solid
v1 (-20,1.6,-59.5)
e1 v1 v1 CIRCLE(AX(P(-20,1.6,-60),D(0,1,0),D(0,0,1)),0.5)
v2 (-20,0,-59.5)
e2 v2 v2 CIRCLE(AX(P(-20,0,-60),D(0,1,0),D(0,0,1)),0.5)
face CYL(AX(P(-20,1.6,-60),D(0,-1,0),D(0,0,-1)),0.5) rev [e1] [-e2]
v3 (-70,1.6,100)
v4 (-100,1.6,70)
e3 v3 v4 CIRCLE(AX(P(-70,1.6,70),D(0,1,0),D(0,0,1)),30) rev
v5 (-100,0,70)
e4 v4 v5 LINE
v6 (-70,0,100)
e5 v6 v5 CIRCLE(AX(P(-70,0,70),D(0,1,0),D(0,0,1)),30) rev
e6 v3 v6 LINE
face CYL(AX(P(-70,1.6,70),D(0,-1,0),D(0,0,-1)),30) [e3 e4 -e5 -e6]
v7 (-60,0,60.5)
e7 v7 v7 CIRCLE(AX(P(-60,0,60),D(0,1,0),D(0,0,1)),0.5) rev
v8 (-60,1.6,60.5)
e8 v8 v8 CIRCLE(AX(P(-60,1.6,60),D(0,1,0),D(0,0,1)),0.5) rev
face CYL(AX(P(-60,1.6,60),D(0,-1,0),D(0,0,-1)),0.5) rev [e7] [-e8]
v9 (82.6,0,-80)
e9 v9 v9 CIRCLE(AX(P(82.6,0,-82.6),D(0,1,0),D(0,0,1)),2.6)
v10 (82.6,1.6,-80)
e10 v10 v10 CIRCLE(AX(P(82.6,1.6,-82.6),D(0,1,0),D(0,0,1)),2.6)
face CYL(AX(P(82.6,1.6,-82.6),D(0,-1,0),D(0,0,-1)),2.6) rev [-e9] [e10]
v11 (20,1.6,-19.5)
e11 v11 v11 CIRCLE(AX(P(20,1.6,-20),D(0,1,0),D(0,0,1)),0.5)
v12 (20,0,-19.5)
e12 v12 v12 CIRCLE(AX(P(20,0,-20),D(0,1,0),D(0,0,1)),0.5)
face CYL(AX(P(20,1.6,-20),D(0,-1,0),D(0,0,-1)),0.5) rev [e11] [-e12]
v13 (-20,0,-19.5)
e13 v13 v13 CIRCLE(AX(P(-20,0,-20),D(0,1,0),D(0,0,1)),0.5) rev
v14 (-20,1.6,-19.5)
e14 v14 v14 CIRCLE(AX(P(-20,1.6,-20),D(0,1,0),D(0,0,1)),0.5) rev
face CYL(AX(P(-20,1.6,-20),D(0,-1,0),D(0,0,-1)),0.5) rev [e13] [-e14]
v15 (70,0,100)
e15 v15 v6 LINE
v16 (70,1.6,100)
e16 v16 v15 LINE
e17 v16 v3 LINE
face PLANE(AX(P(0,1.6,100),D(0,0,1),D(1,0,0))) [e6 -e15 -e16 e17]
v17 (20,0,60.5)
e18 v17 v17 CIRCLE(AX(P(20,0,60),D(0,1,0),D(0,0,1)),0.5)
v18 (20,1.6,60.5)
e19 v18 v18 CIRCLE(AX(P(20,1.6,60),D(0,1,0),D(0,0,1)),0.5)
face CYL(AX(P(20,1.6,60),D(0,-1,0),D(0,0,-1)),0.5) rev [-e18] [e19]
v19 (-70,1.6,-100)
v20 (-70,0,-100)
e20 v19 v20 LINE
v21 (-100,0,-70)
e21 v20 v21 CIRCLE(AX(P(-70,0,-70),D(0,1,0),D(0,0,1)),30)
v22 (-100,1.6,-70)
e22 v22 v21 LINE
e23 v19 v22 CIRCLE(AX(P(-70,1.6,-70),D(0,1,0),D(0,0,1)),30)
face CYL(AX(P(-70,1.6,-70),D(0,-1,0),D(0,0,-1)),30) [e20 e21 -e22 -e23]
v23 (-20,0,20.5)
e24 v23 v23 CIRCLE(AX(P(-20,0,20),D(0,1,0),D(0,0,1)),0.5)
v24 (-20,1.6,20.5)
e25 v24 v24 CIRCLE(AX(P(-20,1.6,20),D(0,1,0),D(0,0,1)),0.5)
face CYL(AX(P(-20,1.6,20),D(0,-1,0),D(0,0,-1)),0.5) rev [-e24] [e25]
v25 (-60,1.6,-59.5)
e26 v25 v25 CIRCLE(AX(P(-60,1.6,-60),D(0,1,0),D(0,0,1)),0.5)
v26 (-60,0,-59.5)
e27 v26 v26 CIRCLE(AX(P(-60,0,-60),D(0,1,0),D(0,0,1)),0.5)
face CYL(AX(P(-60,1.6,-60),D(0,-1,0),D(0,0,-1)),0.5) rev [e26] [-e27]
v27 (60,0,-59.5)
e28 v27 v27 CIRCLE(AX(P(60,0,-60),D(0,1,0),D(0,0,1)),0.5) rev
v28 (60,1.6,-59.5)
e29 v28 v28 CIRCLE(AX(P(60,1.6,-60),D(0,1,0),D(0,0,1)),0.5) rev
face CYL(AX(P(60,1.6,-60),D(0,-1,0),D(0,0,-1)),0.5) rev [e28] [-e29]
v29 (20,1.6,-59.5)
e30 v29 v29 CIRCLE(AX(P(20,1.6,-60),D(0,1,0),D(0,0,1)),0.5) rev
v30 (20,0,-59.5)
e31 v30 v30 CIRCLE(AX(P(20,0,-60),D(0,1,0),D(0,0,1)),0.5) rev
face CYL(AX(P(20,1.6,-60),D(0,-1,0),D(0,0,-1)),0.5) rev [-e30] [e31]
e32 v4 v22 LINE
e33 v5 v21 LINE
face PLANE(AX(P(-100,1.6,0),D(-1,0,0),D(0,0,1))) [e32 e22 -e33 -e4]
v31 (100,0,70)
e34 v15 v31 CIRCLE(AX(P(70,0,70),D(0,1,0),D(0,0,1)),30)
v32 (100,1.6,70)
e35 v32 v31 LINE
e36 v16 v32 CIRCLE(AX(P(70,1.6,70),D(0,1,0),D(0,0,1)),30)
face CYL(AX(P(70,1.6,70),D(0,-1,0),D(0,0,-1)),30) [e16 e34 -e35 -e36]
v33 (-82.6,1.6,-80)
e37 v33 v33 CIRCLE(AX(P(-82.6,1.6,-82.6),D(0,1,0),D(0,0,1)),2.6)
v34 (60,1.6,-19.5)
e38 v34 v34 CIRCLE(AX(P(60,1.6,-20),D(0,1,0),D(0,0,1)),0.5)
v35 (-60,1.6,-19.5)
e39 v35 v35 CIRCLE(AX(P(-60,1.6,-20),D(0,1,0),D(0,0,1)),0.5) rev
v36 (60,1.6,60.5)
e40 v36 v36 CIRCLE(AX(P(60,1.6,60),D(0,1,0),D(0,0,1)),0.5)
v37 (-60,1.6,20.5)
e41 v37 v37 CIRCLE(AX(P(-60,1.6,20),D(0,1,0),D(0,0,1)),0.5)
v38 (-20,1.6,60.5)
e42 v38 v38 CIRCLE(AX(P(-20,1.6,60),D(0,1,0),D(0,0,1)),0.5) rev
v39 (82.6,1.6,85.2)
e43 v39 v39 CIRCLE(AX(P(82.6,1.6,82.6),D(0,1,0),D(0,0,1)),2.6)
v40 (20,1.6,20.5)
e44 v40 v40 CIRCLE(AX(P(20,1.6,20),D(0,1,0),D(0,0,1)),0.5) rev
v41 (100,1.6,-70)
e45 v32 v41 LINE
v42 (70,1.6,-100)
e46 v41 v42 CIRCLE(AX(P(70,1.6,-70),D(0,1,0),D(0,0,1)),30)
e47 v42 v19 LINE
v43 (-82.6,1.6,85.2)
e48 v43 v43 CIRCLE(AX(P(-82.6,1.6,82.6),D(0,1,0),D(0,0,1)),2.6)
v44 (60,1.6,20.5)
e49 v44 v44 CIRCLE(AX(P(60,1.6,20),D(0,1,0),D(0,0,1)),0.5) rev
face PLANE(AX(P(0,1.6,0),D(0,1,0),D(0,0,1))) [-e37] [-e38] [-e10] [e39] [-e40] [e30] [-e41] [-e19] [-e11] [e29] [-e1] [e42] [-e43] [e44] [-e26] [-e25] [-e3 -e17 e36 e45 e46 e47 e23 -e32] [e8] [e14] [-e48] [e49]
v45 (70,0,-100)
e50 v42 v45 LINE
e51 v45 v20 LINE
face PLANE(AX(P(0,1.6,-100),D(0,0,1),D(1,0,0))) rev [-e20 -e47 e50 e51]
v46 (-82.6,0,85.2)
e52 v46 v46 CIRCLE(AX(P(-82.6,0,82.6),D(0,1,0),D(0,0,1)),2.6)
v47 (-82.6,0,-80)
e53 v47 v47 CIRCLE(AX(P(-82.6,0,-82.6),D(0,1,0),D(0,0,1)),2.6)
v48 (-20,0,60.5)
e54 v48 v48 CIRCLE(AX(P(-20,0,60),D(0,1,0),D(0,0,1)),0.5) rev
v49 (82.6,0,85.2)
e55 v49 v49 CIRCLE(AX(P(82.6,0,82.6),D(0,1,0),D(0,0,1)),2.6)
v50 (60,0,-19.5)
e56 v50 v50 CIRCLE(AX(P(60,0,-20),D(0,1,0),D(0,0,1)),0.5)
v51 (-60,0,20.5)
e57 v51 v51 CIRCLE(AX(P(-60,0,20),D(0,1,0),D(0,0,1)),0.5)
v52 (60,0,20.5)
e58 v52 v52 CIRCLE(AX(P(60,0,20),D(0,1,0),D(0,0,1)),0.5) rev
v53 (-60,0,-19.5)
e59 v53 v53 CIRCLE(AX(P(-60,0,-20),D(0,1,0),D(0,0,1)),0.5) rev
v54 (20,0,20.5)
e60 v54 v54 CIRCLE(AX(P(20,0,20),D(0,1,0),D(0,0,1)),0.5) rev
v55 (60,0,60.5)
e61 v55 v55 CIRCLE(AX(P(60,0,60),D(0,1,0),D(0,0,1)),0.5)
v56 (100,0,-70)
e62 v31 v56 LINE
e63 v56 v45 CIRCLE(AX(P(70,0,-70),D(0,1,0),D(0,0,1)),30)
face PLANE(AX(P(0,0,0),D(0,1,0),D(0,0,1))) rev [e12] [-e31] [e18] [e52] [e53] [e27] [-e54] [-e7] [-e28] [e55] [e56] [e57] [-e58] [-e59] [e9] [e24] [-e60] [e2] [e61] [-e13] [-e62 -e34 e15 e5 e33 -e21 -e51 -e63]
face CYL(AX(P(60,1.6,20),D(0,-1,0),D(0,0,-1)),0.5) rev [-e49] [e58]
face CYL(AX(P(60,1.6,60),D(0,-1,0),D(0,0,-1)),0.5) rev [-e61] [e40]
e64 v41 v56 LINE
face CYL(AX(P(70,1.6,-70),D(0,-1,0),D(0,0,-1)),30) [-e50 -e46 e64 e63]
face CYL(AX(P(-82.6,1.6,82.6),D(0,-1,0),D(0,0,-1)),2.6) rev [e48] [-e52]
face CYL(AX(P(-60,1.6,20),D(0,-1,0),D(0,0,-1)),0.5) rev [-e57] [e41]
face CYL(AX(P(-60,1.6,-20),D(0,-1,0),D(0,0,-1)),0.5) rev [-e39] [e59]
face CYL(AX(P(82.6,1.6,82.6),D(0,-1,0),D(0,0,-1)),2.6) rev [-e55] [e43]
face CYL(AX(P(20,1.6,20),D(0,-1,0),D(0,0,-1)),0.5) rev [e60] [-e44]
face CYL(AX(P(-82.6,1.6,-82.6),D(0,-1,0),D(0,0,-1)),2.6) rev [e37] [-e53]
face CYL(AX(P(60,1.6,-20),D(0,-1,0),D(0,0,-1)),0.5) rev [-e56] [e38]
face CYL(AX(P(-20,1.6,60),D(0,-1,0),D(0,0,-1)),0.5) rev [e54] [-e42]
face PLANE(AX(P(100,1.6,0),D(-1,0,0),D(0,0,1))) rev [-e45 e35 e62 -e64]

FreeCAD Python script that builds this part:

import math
import FreeCAD as App
import Part
import Sketcher

V = App.Vector
Q = App.Units.Quantity

doc = App.newDocument("Part")
params = doc.addObject("Spreadsheet::Sheet", "Params")
for row, (alias, value) in enumerate([
    ("sketch1_diameter", "1 mm"),
    ("sketch1_radius", "30 mm"),
    ("sketch1_diameter2", "5.2 mm"),
    ("sketch1_width", "140 mm"),
    ("pad1_length", "1.6 mm"),
], start=1):
    params.set(f"A{row}", alias)
    params.set(f"B{row}", "=" + value)
    params.setAlias(f"B{row}", alias)

body = doc.addObject("PartDesign::Body", "Body")

sketch1 = body.newObject("Sketcher::SketchObject", "Sketch")
sketch1.AttachmentSupport = (doc.getObject("XZ_Plane"), [""])
sketch1.MapMode = "FlatFace"
sketch1.addGeometry([
    Part.LineSegment(V(-70, 100, 0), V(70, 100, 0)),
    Part.ArcOfCircle(Part.Circle(V(70, 70, 0), V(0, 0, 1), 30), math.radians(0), math.radians(90)),
    Part.LineSegment(V(100, 70, 0), V(100, -70, 0)),
    Part.ArcOfCircle(Part.Circle(V(70, -70, 0), V(0, 0, 1), 30), math.radians(-90), math.radians(0)),
    Part.LineSegment(V(70, -100, 0), V(-70, -100, 0)),
    Part.ArcOfCircle(Part.Circle(V(-70, -70, 0), V(0, 0, 1), 30), math.radians(180), math.radians(270)),
    Part.LineSegment(V(-100, -70, 0), V(-100, 70, 0)),
    Part.ArcOfCircle(Part.Circle(V(-70, 70, 0), V(0, 0, 1), 30), math.radians(90), math.radians(180)),
    Part.Circle(V(82.6, 82.6, 0), V(0, 0, 1), 2.6),
    Part.Circle(V(60, 60, 0), V(0, 0, 1), 0.5),
    Part.Circle(V(20, 60, 0), V(0, 0, 1), 0.5),
    Part.Circle(V(60, 20, 0), V(0, 0, 1), 0.5),
    Part.Circle(V(20, 20, 0), V(0, 0, 1), 0.5),
    Part.Circle(V(-20, 60, 0), V(0, 0, 1), 0.5),
    Part.Circle(V(-82.6, 82.6, 0), V(0, 0, 1), 2.6),
    Part.Circle(V(-60, 60, 0), V(0, 0, 1), 0.5),
    Part.Circle(V(-20, 20, 0), V(0, 0, 1), 0.5),
    Part.Circle(V(-60, 20, 0), V(0, 0, 1), 0.5),
    Part.Circle(V(60, -20, 0), V(0, 0, 1), 0.5),
    Part.Circle(V(20, -20, 0), V(0, 0, 1), 0.5),
    Part.Circle(V(60, -60, 0), V(0, 0, 1), 0.5),
    Part.Circle(V(82.6, -82.6, 0), V(0, 0, 1), 2.6),
    Part.Circle(V(20, -60, 0), V(0, 0, 1), 0.5),
    Part.Circle(V(-20, -20, 0), V(0, 0, 1), 0.5),
    Part.Circle(V(-60, -20, 0), V(0, 0, 1), 0.5),
    Part.Circle(V(-20, -60, 0), V(0, 0, 1), 0.5),
    Part.Circle(V(-60, -60, 0), V(0, 0, 1), 0.5),
    Part.Circle(V(-82.6, -82.6, 0), V(0, 0, 1), 2.6),
], False)
sketch1.addConstraint([
    Sketcher.Constraint("Tangent", 0, 2, 1, 2),
    Sketcher.Constraint("Tangent", 1, 1, 2, 1),
    Sketcher.Constraint("Tangent", 2, 2, 3, 2),
    Sketcher.Constraint("Tangent", 3, 1, 4, 1),
    Sketcher.Constraint("Tangent", 4, 2, 5, 2),
    Sketcher.Constraint("Tangent", 5, 1, 6, 1),
    Sketcher.Constraint("Tangent", 6, 2, 7, 2),
    Sketcher.Constraint("Tangent", 7, 1, 0, 1),
    Sketcher.Constraint("Horizontal", 0),
    Sketcher.Constraint("Vertical", 2),
    Sketcher.Constraint("Horizontal", 4),
    Sketcher.Constraint("Vertical", 6),
    Sketcher.Constraint("Equal", 1, 3),
    Sketcher.Constraint("Equal", 3, 5),
    Sketcher.Constraint("Equal", 5, 7),
    Sketcher.Constraint("Equal", 9, 10),
    Sketcher.Constraint("Equal", 10, 11),
    Sketcher.Constraint("Equal", 11, 12),
    Sketcher.Constraint("Equal", 12, 13),
    Sketcher.Constraint("Equal", 8, 14),
    Sketcher.Constraint("Equal", 13, 15),
    Sketcher.Constraint("Equal", 15, 16),
    Sketcher.Constraint("Equal", 16, 17),
    Sketcher.Constraint("Equal", 17, 18),
    Sketcher.Constraint("Equal", 18, 19),
    Sketcher.Constraint("Equal", 19, 20),
    Sketcher.Constraint("Equal", 14, 21),
    Sketcher.Constraint("Equal", 20, 22),
    Sketcher.Constraint("Equal", 22, 23),
    Sketcher.Constraint("Equal", 23, 24),
    Sketcher.Constraint("Equal", 24, 25),
    Sketcher.Constraint("Equal", 25, 26),
    Sketcher.Constraint("Equal", 21, 27),
    Sketcher.Constraint("Symmetric", 1, 3, 5, 3, -1, 1),
    Sketcher.Constraint("Symmetric", 17, 3, 18, 3, -1, 1),
    Sketcher.Constraint("Symmetric", 16, 3, 19, 3, -1, 1),
    Sketcher.Constraint("Symmetric", 15, 3, 20, 3, -1, 1),
    Sketcher.Constraint("Symmetric", 14, 3, 21, 3, -1, 1),
    Sketcher.Constraint("Symmetric", 13, 3, 22, 3, -1, 1),
    Sketcher.Constraint("Symmetric", 12, 3, 23, 3, -1, 1),
    Sketcher.Constraint("Symmetric", 11, 3, 24, 3, -1, 1),
    Sketcher.Constraint("Symmetric", 10, 3, 25, 3, -1, 1),
    Sketcher.Constraint("Symmetric", 9, 3, 26, 3, -1, 1),
    Sketcher.Constraint("Symmetric", 8, 3, 27, 3, -1, 1),
    Sketcher.Constraint("Symmetric", 10, 3, 13, 3, -2),
    Sketcher.Constraint("Symmetric", 8, 3, 14, 3, -2),
    Sketcher.Constraint("Symmetric", 9, 3, 15, 3, -2),
    Sketcher.Constraint("Symmetric", 12, 3, 16, 3, -2),
    Sketcher.Constraint("Symmetric", 11, 3, 17, 3, -2),
    Sketcher.Constraint("Horizontal", 9, 3, 10, 3),
    Sketcher.Constraint("Horizontal", 11, 3, 12, 3),
    Sketcher.Constraint("Vertical", 9, 3, 11, 3),
    Sketcher.Constraint("Vertical", 10, 3, 12, 3),
    Sketcher.Constraint("Equal", 4, 2),
    Sketcher.Constraint("Diameter", 9, Q("1 mm")),
    Sketcher.Constraint("Radius", 1, Q("30 mm")),
    Sketcher.Constraint("Diameter", 8, Q("5.2 mm")),
    Sketcher.Constraint("DistanceX", 0, 1, 0, 2, Q("140 mm")),
    Sketcher.Constraint("DistanceX", -1, 1, 9, 3, Q("60 mm")),
    Sketcher.Constraint("DistanceY", -1, 1, 9, 3, Q("60 mm")),
    Sketcher.Constraint("DistanceX", -1, 1, 10, 3, Q("20 mm")),
    Sketcher.Constraint("DistanceY", -1, 1, 11, 3, Q("20 mm")),
    Sketcher.Constraint("DistanceX", -1, 1, 8, 3, Q("82.6 mm")),
    Sketcher.Constraint("DistanceY", -1, 1, 8, 3, Q("82.6 mm")),
])
sketch1.setExpression("Constraints[54]", "Params.sketch1_diameter")
sketch1.setExpression("Constraints[55]", "Params.sketch1_radius")
sketch1.setExpression("Constraints[56]", "Params.sketch1_diameter2")
sketch1.setExpression("Constraints[57]", "Params.sketch1_width")
pad1 = body.newObject("PartDesign::Pad", "Pad")
pad1.Profile = sketch1
pad1.setExpression("Length", "Params.pad1_length")
pad1.Reversed = True

doc.recompute()
